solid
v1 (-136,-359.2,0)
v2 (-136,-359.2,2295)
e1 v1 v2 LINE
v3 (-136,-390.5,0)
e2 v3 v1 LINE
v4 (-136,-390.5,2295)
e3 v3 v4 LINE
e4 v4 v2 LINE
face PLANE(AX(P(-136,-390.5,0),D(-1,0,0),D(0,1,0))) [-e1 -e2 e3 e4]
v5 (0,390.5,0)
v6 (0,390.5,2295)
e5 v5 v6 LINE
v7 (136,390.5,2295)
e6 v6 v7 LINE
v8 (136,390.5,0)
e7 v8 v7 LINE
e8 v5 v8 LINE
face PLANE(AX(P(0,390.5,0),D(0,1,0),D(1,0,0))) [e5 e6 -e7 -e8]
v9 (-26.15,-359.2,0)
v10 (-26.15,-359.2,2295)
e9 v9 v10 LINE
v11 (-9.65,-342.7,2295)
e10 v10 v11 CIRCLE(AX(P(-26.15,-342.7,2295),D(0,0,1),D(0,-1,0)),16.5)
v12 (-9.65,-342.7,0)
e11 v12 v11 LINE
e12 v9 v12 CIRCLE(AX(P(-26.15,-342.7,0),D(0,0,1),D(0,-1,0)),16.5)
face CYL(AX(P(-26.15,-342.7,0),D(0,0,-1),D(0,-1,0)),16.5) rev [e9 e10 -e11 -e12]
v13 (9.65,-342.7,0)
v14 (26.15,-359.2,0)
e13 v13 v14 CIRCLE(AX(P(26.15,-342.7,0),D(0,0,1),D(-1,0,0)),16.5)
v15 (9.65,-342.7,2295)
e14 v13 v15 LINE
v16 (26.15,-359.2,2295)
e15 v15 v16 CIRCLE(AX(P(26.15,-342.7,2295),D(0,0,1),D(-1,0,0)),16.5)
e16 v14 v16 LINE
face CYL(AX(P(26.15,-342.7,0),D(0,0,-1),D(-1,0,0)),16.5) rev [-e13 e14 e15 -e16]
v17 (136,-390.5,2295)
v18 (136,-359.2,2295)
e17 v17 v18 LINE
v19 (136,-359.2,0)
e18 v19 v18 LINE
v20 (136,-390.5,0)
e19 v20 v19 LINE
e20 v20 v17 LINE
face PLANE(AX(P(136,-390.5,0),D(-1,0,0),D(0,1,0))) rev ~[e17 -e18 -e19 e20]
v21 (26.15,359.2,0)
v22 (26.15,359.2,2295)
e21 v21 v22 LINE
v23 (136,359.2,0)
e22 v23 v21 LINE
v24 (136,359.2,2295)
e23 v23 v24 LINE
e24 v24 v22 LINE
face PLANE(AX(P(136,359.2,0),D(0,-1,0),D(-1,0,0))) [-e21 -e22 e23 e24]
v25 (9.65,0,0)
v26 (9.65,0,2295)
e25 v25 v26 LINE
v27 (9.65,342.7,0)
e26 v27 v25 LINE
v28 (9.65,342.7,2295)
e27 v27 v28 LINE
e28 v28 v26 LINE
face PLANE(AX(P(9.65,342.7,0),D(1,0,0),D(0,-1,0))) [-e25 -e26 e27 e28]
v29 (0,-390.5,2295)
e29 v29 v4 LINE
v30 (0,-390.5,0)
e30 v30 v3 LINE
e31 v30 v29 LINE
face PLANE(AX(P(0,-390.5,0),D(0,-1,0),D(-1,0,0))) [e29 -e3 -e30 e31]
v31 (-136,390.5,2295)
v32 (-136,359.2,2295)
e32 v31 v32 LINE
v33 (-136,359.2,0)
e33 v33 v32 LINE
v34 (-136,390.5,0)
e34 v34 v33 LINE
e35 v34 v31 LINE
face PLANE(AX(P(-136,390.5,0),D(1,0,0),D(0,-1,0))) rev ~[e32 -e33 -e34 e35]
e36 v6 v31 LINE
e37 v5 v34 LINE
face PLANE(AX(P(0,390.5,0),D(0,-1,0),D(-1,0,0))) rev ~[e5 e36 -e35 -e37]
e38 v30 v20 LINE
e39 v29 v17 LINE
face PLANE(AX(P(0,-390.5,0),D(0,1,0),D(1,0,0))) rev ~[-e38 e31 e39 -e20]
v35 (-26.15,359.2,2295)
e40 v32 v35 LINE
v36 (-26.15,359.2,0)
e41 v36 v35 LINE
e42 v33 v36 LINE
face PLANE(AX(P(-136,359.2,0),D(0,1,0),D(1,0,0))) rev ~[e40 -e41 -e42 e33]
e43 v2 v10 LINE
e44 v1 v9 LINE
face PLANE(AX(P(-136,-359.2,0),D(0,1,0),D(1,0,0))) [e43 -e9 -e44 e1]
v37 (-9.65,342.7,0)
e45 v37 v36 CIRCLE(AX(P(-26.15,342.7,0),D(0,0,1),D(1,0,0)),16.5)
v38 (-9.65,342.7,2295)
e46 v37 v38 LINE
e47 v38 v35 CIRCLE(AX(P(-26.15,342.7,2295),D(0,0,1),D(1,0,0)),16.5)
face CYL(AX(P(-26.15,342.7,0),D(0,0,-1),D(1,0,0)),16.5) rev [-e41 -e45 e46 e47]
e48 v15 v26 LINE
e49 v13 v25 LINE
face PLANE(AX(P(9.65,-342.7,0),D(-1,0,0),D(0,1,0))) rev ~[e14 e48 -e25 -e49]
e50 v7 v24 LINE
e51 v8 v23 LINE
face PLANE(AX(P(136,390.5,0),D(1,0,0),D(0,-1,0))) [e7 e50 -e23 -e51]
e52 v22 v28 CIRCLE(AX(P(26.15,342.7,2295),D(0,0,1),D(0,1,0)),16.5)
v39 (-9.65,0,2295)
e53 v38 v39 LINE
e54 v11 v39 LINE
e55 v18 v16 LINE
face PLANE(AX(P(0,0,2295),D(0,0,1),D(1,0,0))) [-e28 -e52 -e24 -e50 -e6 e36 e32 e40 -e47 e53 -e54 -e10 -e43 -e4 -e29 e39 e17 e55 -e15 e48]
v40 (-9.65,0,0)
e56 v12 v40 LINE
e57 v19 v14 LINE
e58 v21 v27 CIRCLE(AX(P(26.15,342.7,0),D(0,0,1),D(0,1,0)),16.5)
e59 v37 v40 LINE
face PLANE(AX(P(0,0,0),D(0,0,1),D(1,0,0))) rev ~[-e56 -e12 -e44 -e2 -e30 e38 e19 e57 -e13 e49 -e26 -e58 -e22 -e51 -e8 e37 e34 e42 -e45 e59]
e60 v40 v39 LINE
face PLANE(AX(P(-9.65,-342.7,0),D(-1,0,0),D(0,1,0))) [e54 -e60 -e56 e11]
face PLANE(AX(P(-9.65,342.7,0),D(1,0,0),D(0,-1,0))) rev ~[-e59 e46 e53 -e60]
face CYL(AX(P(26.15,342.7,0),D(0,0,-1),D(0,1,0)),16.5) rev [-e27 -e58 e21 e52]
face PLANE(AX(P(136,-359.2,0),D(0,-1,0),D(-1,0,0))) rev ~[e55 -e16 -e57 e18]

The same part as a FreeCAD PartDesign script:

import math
import FreeCAD as App
import Part
import Sketcher
from FreeCAD import Vector
Q = App.Units.Quantity

doc = App.newDocument("Part")
body = doc.addObject("PartDesign::Body", "Body")

# Sketch on XY plane
sketch1 = body.newObject("Sketcher::SketchObject", "Sketch")
sketch1.AttachmentSupport = (doc.getObject("XY_Plane"), [""])
sketch1.MapMode = "FlatFace"
sketch1.addGeometry(Part.LineSegment(Vector(-136, -359, 0), Vector(-136, -390, 0)), False)
sketch1.addGeometry(Part.LineSegment(Vector(-136, -390, 0), Vector(136, -390, 0)), False)
sketch1.addGeometry(Part.LineSegment(Vector(136, -390, 0), Vector(136, -359, 0)), False)
sketch1.addGeometry(Part.LineSegment(Vector(136, -359, 0), Vector(26, -359, 0)), False)
sketch1.addGeometry(Part.ArcOfCircle(Part.Circle(Vector(26, -343, 0), Vector(0, 0, 1), 16), math.radians(180), math.radians(270)), False)
sketch1.addGeometry(Part.LineSegment(Vector(10, -343, 0), Vector(10, 343, 0)), False)
sketch1.addGeometry(Part.ArcOfCircle(Part.Circle(Vector(26, 343, 0), Vector(0, 0, 1), 16), math.radians(90), math.radians(180)), False)
sketch1.addGeometry(Part.LineSegment(Vector(26, 359, 0), Vector(136, 359, 0)), False)
sketch1.addGeometry(Part.LineSegment(Vector(136, 359, 0), Vector(136, 390, 0)), False)
sketch1.addGeometry(Part.LineSegment(Vector(136, 390, 0), Vector(-136, 390, 0)), False)
sketch1.addGeometry(Part.LineSegment(Vector(-136, 390, 0), Vector(-136, 359, 0)), False)
sketch1.addGeometry(Part.LineSegment(Vector(-136, 359, 0), Vector(-26, 359, 0)), False)
sketch1.addGeometry(Part.ArcOfCircle(Part.Circle(Vector(-26, 343, 0), Vector(0, 0, 1), 16), math.radians(0), math.radians(90)), False)
sketch1.addGeometry(Part.LineSegment(Vector(-10, 343, 0), Vector(-10, -343, 0)), False)
sketch1.addGeometry(Part.ArcOfCircle(Part.Circle(Vector(-26, -343, 0), Vector(0, 0, 1), 16), math.radians(-90), math.radians(0)), False)
sketch1.addGeometry(Part.LineSegment(Vector(-26, -359, 0), Vector(-136, -359, 0)), False)
sketch1.addConstraint(Sketcher.Constraint("Coincident", 0, 2, 1, 1))
sketch1.addConstraint(Sketcher.Constraint("Coincident", 1, 2, 2, 1))
sketch1.addConstraint(Sketcher.Constraint("Coincident", 2, 2, 3, 1))
sketch1.addConstraint(Sketcher.Constraint("Tangent", 3, 2, 4, 2))
sketch1.addConstraint(Sketcher.Constraint("Tangent", 4, 1, 5, 1))
sketch1.addConstraint(Sketcher.Constraint("Tangent", 5, 2, 6, 2))
sketch1.addConstraint(Sketcher.Constraint("Tangent", 6, 1, 7, 1))
sketch1.addConstraint(Sketcher.Constraint("Coincident", 7, 2, 8, 1))
sketch1.addConstraint(Sketcher.Constraint("Coincident", 8, 2, 9, 1))
sketch1.addConstraint(Sketcher.Constraint("Coincident", 9, 2, 10, 1))
sketch1.addConstraint(Sketcher.Constraint("Coincident", 10, 2, 11, 1))
sketch1.addConstraint(Sketcher.Constraint("Tangent", 11, 2, 12, 2))
sketch1.addConstraint(Sketcher.Constraint("Tangent", 12, 1, 13, 1))
sketch1.addConstraint(Sketcher.Constraint("Tangent", 13, 2, 14, 2))
sketch1.addConstraint(Sketcher.Constraint("Tangent", 14, 1, 15, 1))
sketch1.addConstraint(Sketcher.Constraint("Coincident", 15, 2, 0, 1))
sketch1.addConstraint(Sketcher.Constraint("Vertical", 0))
sketch1.addConstraint(Sketcher.Constraint("Horizontal", 1))
sketch1.addConstraint(Sketcher.Constraint("Vertical", 2))
sketch1.addConstraint(Sketcher.Constraint("Horizontal", 3))
sketch1.addConstraint(Sketcher.Constraint("Vertical", 5))
sketch1.addConstraint(Sketcher.Constraint("Horizontal", 7))
sketch1.addConstraint(Sketcher.Constraint("Vertical", 8))
sketch1.addConstraint(Sketcher.Constraint("Horizontal", 9))
sketch1.addConstraint(Sketcher.Constraint("Vertical", 10))
sketch1.addConstraint(Sketcher.Constraint("Horizontal", 11))
sketch1.addConstraint(Sketcher.Constraint("Vertical", 13))
sketch1.addConstraint(Sketcher.Constraint("Horizontal", 15))
sketch1.addConstraint(Sketcher.Constraint("Equal", 4, 6))
sketch1.addConstraint(Sketcher.Constraint("Equal", 6, 12))
sketch1.addConstraint(Sketcher.Constraint("Equal", 12, 14))
sketch1.addConstraint(Sketcher.Constraint("Symmetric", 4, 3, 12, 3, -1, 1))
sketch1.addConstraint(Sketcher.Constraint("Symmetric", 0, 2, 8, 2, -1, 1))
sketch1.addConstraint(Sketcher.Constraint("Symmetric", 7, 2, 10, 2, -2))
sketch1.addConstraint(Sketcher.Constraint("Symmetric", 2, 2, 15, 2, -2))
sketch1.addConstraint(Sketcher.Constraint("Radius", 4, Q("16.5 mm")))
sketch1.addConstraint(Sketcher.Constraint("DistanceY", 0, 2, 0, 1, Q("31.3 mm")))
sketch1.addConstraint(Sketcher.Constraint("DistanceX", 0, 2, -1, 1, Q("136 mm")))
sketch1.addConstraint(Sketcher.Constraint("DistanceY", 0, 2, -1, 1, Q("390.5 mm")))
sketch1.addConstraint(Sketcher.Constraint("DistanceX", -1, 1, 4, 1, Q("9.65 mm")))
pad1 = body.newObject("PartDesign::Pad", "Pad")
pad1.Profile = sketch1
pad1.Length = 2295

doc.recompute()
